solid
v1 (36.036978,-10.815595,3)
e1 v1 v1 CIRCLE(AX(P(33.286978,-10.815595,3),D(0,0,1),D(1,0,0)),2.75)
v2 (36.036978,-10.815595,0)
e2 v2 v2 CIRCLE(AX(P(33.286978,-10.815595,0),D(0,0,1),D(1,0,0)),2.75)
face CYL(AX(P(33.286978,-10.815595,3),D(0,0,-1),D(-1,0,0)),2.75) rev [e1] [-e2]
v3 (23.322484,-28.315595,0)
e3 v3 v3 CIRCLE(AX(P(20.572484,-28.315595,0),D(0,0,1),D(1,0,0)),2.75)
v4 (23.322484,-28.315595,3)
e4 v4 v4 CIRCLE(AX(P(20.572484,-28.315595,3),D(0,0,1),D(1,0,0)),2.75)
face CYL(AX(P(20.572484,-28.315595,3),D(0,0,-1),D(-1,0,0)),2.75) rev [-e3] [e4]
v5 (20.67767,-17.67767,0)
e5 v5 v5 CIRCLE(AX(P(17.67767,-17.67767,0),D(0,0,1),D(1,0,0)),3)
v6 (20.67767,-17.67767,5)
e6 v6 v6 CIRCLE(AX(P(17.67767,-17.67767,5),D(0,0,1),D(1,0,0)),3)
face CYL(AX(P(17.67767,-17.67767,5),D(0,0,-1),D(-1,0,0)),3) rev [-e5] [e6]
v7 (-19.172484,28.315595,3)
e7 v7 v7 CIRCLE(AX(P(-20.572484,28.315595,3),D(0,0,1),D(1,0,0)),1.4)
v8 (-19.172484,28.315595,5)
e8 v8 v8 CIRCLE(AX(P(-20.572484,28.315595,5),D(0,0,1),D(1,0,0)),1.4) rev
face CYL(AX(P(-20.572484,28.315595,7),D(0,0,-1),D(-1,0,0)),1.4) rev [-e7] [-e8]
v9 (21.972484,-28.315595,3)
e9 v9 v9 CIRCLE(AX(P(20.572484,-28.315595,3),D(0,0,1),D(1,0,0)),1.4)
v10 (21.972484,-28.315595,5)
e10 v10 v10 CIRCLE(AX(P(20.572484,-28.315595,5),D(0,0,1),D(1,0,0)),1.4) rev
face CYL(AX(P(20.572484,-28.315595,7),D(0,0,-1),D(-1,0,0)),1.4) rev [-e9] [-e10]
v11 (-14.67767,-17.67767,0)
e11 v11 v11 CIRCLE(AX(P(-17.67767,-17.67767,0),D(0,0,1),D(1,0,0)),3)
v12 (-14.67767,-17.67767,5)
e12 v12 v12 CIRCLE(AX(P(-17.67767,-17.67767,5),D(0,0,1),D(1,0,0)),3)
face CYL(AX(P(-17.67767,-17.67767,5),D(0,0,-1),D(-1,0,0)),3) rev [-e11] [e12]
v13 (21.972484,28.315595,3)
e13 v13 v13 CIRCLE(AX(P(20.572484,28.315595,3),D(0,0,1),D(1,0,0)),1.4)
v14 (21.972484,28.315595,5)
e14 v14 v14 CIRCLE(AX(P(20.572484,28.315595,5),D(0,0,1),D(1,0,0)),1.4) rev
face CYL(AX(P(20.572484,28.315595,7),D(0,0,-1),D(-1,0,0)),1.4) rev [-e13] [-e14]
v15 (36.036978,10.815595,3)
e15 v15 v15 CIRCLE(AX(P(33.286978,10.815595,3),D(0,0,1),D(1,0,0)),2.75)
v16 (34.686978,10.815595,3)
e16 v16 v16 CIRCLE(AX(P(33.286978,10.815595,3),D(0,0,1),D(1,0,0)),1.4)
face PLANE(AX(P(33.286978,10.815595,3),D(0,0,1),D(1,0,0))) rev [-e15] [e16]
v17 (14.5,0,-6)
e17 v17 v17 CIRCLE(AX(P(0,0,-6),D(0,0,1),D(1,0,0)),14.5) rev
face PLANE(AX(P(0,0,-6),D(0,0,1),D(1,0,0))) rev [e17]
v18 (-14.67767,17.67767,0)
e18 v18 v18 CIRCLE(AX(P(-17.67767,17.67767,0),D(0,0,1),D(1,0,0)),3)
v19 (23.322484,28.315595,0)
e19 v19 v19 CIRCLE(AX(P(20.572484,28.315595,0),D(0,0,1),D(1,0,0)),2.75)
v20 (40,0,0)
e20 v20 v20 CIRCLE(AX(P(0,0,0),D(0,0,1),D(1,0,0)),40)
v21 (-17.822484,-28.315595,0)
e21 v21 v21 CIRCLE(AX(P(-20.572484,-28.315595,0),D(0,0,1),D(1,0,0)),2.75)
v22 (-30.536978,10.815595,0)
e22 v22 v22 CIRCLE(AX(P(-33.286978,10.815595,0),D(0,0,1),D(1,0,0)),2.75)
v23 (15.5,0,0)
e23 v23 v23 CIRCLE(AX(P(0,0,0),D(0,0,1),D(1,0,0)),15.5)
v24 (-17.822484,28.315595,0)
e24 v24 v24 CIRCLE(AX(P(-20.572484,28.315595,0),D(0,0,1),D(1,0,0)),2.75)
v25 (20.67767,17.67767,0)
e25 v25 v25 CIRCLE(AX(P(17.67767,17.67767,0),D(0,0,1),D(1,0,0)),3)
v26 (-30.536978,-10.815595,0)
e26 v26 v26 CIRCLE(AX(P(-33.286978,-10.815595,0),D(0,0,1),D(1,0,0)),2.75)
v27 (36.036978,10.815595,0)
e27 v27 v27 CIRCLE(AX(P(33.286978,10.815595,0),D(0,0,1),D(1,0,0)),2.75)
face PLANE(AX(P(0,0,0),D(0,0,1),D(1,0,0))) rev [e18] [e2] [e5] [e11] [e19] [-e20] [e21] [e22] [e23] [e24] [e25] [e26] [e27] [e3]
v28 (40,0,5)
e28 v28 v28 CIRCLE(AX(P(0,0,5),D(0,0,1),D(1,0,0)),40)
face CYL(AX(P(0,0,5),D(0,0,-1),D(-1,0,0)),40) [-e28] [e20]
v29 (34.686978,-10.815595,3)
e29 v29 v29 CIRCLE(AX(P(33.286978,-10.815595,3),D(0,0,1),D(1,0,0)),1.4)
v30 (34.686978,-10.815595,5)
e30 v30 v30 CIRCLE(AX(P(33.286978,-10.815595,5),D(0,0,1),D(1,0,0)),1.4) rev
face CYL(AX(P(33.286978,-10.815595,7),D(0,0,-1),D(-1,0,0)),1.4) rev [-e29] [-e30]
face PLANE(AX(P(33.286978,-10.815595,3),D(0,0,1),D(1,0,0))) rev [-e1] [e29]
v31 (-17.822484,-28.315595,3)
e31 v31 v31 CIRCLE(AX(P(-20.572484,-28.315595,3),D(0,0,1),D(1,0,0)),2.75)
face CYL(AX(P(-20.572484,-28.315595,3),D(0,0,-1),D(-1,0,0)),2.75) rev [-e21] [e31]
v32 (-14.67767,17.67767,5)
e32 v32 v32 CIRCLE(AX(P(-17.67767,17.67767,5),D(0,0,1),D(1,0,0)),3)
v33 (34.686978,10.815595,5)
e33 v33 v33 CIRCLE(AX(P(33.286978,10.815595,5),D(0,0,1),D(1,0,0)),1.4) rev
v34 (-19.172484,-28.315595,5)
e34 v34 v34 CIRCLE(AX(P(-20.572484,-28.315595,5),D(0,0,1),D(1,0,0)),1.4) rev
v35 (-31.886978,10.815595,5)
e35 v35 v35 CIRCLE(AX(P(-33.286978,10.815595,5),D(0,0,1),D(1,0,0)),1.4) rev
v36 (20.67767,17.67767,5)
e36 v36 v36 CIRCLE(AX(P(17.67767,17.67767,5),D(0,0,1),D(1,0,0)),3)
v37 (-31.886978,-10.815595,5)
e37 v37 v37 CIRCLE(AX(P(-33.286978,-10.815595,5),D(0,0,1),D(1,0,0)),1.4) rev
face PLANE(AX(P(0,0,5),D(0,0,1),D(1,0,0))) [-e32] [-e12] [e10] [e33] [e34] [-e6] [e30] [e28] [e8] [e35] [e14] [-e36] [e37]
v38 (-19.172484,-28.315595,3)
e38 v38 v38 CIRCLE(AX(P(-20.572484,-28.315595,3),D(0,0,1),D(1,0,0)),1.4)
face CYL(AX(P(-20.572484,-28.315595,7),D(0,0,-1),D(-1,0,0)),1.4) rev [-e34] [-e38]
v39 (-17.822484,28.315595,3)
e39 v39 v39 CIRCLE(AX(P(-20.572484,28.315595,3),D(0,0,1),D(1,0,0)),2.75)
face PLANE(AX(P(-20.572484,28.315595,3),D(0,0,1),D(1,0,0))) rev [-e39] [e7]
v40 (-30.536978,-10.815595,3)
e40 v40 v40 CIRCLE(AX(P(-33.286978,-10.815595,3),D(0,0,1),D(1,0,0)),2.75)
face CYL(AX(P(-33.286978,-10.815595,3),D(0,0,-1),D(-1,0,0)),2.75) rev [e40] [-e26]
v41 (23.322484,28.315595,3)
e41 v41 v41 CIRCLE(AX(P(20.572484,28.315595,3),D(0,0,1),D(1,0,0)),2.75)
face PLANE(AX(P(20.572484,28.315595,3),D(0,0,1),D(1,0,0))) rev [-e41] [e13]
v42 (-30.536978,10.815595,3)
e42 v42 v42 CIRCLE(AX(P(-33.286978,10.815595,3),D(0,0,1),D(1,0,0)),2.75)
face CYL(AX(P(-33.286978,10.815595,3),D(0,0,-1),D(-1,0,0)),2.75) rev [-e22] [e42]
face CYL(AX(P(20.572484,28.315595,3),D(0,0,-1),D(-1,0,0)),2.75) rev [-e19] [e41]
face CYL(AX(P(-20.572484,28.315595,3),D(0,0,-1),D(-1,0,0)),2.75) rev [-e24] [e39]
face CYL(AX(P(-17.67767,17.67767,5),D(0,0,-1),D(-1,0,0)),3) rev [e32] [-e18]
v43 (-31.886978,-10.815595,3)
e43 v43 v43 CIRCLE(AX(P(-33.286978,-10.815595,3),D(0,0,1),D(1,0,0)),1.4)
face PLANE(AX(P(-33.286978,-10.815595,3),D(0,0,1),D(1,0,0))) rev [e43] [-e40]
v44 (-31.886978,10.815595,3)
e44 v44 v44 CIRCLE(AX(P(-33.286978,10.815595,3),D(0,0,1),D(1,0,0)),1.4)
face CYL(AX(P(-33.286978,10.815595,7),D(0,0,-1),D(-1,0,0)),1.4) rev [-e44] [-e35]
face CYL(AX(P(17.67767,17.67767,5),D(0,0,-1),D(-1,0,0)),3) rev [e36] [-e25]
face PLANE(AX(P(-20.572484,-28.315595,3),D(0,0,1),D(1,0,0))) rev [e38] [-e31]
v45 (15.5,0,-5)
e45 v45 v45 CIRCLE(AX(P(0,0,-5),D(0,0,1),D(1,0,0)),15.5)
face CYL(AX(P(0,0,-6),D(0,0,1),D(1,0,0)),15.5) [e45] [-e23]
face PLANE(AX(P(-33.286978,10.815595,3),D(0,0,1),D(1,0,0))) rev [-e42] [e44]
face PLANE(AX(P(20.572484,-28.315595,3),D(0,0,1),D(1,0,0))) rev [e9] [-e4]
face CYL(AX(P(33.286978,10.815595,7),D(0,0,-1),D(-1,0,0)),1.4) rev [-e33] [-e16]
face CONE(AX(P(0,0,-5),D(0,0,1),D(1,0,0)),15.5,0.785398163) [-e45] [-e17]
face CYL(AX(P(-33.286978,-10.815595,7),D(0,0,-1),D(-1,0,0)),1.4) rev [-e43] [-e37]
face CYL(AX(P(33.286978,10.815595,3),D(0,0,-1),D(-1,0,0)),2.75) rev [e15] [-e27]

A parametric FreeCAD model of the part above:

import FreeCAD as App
import Part
import Sketcher

V = App.Vector
Q = App.Units.Quantity


def edges_at(feature, points):
    """Names of the edges that pass closest to the given points."""
    edges = feature.Shape.Edges
    near = lambda p: min(range(len(edges)), key=lambda i: edges[i].distToShape(Part.Vertex(*p))[0])
    return sorted({f"Edge{near(p) + 1}" for p in points})

doc = App.newDocument("Part")
body = doc.addObject("PartDesign::Body", "Body")

# Sketch on XY plane
sketch1 = doc.addObject("Sketcher::SketchObject", "Sketch")
body.addObject(sketch1)
sketch1.AttachmentSupport = (doc.XY_Plane, [""])
sketch1.MapMode = "FlatFace"
sketch1.addGeometry(Part.Circle(V(0, 0, 0), V(0, 0, 1), 40), False)
sketch1.addConstraint(Sketcher.Constraint("Coincident", 0, 3, -1, 1))
sketch1.addConstraint(Sketcher.Constraint("Diameter", 0, Q("80 mm")))
pad1 = doc.addObject("PartDesign::Pad", "Pad")
body.addObject(pad1)
pad1.Profile = sketch1
pad1.Length = 5

# Sketch on XY plane
sketch2 = doc.addObject("Sketcher::SketchObject", "Sketch001")
body.addObject(sketch2)
sketch2.AttachmentSupport = (doc.XY_Plane, [""])
sketch2.MapMode = "FlatFace"
sketch2.addGeometry(Part.Circle(V(-17.7, 17.7, 0), V(0, 0, 1), 3), False)
sketch2.addGeometry(Part.Circle(V(17.7, 17.7, 0), V(0, 0, 1), 3), False)
sketch2.addGeometry(Part.Circle(V(17.7, -17.7, 0), V(0, 0, 1), 3), False)
sketch2.addGeometry(Part.Circle(V(-17.7, -17.7, 0), V(0, 0, 1), 3), False)
sketch2.addConstraint(Sketcher.Constraint("Equal", 0, 1))
sketch2.addConstraint(Sketcher.Constraint("Equal", 1, 2))
sketch2.addConstraint(Sketcher.Constraint("Equal", 2, 3))
sketch2.addConstraint(Sketcher.Constraint("Symmetric", 0, 3, 2, 3, -1, 1))
sketch2.addConstraint(Sketcher.Constraint("Symmetric", 1, 3, 3, 3, -1, 1))
sketch2.addConstraint(Sketcher.Constraint("Symmetric", 0, 3, 1, 3, -2))
sketch2.addConstraint(Sketcher.Constraint("Diameter", 0, Q("6 mm")))
sketch2.addConstraint(Sketcher.Constraint("DistanceX", 0, 3, -1, 1, Q("17.67767 mm")))
sketch2.addConstraint(Sketcher.Constraint("DistanceY", -1, 1, 0, 3, Q("17.67767 mm")))
pocket1 = doc.addObject("PartDesign::Pocket", "Pocket")
body.addObject(pocket1)
pocket1.Profile = sketch2
pocket1.Length = 5
pocket1.Reversed = True

# Sketch on XY plane
sketch3 = doc.addObject("Sketcher::SketchObject", "Sketch002")
body.addObject(sketch3)
sketch3.AttachmentSupport = (doc.XY_Plane, [""])
sketch3.MapMode = "FlatFace"
sketch3.addGeometry(Part.Circle(V(0, 0, 0), V(0, 0, 1), 16), False)
sketch3.addConstraint(Sketcher.Constraint("Coincident", 0, 3, -1, 1))
sketch3.addConstraint(Sketcher.Constraint("Diameter", 0, Q("31 mm")))
pad2 = doc.addObject("PartDesign::Pad", "Pad001")
body.addObject(pad2)
pad2.Profile = sketch3
pad2.Length = 6
pad2.Reversed = True
doc.recompute()

chamfer = doc.addObject("PartDesign::Chamfer", "Chamfer")
body.addObject(chamfer)
chamfer.Base = (pad2, edges_at(pad2, [(-15.5, 0, -6)]))
chamfer.Size = 1

# Sketch on XY plane
sketch4 = doc.addObject("Sketcher::SketchObject", "Sketch003")
body.addObject(sketch4)
sketch4.AttachmentSupport = (doc.XY_Plane, [""])
sketch4.MapMode = "FlatFace"
sketch4.addGeometry(Part.Circle(V(-20.6, 28.3, 0), V(0, 0, 1), 1.4), False)
sketch4.addGeometry(Part.Circle(V(20.6, 28.3, 0), V(0, 0, 1), 1.4), False)
sketch4.addGeometry(Part.Circle(V(33.3, 10.8, 0), V(0, 0, 1), 1.4), False)
sketch4.addGeometry(Part.Circle(V(33.3, -10.8, 0), V(0, 0, 1), 1.4), False)
sketch4.addGeometry(Part.Circle(V(20.6, -28.3, 0), V(0, 0, 1), 1.4), False)
sketch4.addGeometry(Part.Circle(V(-20.6, -28.3, 0), V(0, 0, 1), 1.4), False)
sketch4.addGeometry(Part.Circle(V(-33.3, -10.8, 0), V(0, 0, 1), 1.4), False)
sketch4.addGeometry(Part.Circle(V(-33.3, 10.8, 0), V(0, 0, 1), 1.4), False)
sketch4.addConstraint(Sketcher.Constraint("Equal", 0, 1))
sketch4.addConstraint(Sketcher.Constraint("Equal", 1, 2))
sketch4.addConstraint(Sketcher.Constraint("Equal", 2, 3))
sketch4.addConstraint(Sketcher.Constraint("Equal", 3, 4))
sketch4.addConstraint(Sketcher.Constraint("Equal", 4, 5))
sketch4.addConstraint(Sketcher.Constraint("Equal", 5, 6))
sketch4.addConstraint(Sketcher.Constraint("Equal", 6, 7))
sketch4.addConstraint(Sketcher.Constraint("Symmetric", 0, 3, 4, 3, -1, 1))
sketch4.addConstraint(Sketcher.Constraint("Symmetric", 1, 3, 5, 3, -1, 1))
sketch4.addConstraint(Sketcher.Constraint("Symmetric", 2, 3, 6, 3, -1, 1))
sketch4.addConstraint(Sketcher.Constraint("Symmetric", 3, 3, 7, 3, -1, 1))
sketch4.addConstraint(Sketcher.Constraint("Symmetric", 0, 3, 1, 3, -2))
sketch4.addConstraint(Sketcher.Constraint("Symmetric", 3, 3, 6, 3, -2))
sketch4.addConstraint(Sketcher.Constraint("Diameter", 0, Q("2.8 mm")))
sketch4.addConstraint(Sketcher.Constraint("DistanceY", 2, 3, 1, 3, Q("17.5 mm")))
sketch4.addConstraint(Sketcher.Constraint("DistanceX", -1, 1, 2, 3, Q("33.286978 mm")))
sketch4.addConstraint(Sketcher.Constraint("DistanceX", 0, 3, 2, 3, Q("53.859462 mm")))
sketch4.addConstraint(Sketcher.Constraint("DistanceY", 3, 3, 2, 3, Q("21.63119 mm")))
pocket2 = doc.addObject("PartDesign::Pocket", "Pocket001")
body.addObject(pocket2)
pocket2.Profile = sketch4
pocket2.Length = 7
pocket2.Reversed = True

# Sketch on XY plane
sketch5 = doc.addObject("Sketcher::SketchObject", "Sketch004")
body.addObject(sketch5)
sketch5.AttachmentSupport = (doc.XY_Plane, [""])
sketch5.MapMode = "FlatFace"
sketch5.addGeometry(Part.Circle(V(20.6, 28.3, 0), V(0, 0, 1), 2.8), False)
sketch5.addGeometry(Part.Circle(V(33.3, 10.8, 0), V(0, 0, 1), 2.8), False)
sketch5.addGeometry(Part.Circle(V(33.3, -10.8, 0), V(0, 0, 1), 2.8), False)
sketch5.addGeometry(Part.Circle(V(20.6, -28.3, 0), V(0, 0, 1), 2.8), False)
sketch5.addGeometry(Part.Circle(V(-20.6, -28.3, 0), V(0, 0, 1), 2.8), False)
sketch5.addGeometry(Part.Circle(V(-33.3, -10.8, 0), V(0, 0, 1), 2.8), False)
sketch5.addGeometry(Part.Circle(V(-33.3, 10.8, 0), V(0, 0, 1), 2.8), False)
sketch5.addGeometry(Part.Circle(V(-20.6, 28.3, 0), V(0, 0, 1), 2.8), False)
sketch5.addConstraint(Sketcher.Constraint("Equal", 0, 1))
sketch5.addConstraint(Sketcher.Constraint("Equal", 1, 2))
sketch5.addConstraint(Sketcher.Constraint("Equal", 2, 3))
sketch5.addConstraint(Sketcher.Constraint("Equal", 3, 4))
sketch5.addConstraint(Sketcher.Constraint("Equal", 4, 5))
sketch5.addConstraint(Sketcher.Constraint("Equal", 5, 6))
sketch5.addConstraint(Sketcher.Constraint("Equal", 6, 7))
sketch5.addConstraint(Sketcher.Constraint("Symmetric", 0, 3, 4, 3, -1, 1))
sketch5.addConstraint(Sketcher.Constraint("Symmetric", 1, 3, 5, 3, -1, 1))
sketch5.addConstraint(Sketcher.Constraint("Symmetric", 2, 3, 6, 3, -1, 1))
sketch5.addConstraint(Sketcher.Constraint("Symmetric", 3, 3, 7, 3, -1, 1))
sketch5.addConstraint(Sketcher.Constraint("Symmetric", 3, 3, 4, 3, -2))
sketch5.addConstraint(Sketcher.Constraint("Symmetric", 2, 3, 5, 3, -2))
sketch5.addConstraint(Sketcher.Constraint("Diameter", 0, Q("5.5 mm")))
sketch5.addConstraint(Sketcher.Constraint("DistanceY", 1, 3, 0, 3, Q("17.5 mm")))
sketch5.addConstraint(Sketcher.Constraint("DistanceX", -1, 1, 1, 3, Q("33.286978 mm")))
sketch5.addConstraint(Sketcher.Constraint("DistanceY", 2, 3, 1, 3, Q("21.63119 mm")))
sketch5.addConstraint(Sketcher.Constraint("DistanceX", 4, 3, 2, 3, Q("53.859462 mm")))
pocket3 = doc.addObject("PartDesign::Pocket", "Pocket002")
body.addObject(pocket3)
pocket3.Profile = sketch5
pocket3.Length = 3
pocket3.Reversed = True

doc.recompute()
